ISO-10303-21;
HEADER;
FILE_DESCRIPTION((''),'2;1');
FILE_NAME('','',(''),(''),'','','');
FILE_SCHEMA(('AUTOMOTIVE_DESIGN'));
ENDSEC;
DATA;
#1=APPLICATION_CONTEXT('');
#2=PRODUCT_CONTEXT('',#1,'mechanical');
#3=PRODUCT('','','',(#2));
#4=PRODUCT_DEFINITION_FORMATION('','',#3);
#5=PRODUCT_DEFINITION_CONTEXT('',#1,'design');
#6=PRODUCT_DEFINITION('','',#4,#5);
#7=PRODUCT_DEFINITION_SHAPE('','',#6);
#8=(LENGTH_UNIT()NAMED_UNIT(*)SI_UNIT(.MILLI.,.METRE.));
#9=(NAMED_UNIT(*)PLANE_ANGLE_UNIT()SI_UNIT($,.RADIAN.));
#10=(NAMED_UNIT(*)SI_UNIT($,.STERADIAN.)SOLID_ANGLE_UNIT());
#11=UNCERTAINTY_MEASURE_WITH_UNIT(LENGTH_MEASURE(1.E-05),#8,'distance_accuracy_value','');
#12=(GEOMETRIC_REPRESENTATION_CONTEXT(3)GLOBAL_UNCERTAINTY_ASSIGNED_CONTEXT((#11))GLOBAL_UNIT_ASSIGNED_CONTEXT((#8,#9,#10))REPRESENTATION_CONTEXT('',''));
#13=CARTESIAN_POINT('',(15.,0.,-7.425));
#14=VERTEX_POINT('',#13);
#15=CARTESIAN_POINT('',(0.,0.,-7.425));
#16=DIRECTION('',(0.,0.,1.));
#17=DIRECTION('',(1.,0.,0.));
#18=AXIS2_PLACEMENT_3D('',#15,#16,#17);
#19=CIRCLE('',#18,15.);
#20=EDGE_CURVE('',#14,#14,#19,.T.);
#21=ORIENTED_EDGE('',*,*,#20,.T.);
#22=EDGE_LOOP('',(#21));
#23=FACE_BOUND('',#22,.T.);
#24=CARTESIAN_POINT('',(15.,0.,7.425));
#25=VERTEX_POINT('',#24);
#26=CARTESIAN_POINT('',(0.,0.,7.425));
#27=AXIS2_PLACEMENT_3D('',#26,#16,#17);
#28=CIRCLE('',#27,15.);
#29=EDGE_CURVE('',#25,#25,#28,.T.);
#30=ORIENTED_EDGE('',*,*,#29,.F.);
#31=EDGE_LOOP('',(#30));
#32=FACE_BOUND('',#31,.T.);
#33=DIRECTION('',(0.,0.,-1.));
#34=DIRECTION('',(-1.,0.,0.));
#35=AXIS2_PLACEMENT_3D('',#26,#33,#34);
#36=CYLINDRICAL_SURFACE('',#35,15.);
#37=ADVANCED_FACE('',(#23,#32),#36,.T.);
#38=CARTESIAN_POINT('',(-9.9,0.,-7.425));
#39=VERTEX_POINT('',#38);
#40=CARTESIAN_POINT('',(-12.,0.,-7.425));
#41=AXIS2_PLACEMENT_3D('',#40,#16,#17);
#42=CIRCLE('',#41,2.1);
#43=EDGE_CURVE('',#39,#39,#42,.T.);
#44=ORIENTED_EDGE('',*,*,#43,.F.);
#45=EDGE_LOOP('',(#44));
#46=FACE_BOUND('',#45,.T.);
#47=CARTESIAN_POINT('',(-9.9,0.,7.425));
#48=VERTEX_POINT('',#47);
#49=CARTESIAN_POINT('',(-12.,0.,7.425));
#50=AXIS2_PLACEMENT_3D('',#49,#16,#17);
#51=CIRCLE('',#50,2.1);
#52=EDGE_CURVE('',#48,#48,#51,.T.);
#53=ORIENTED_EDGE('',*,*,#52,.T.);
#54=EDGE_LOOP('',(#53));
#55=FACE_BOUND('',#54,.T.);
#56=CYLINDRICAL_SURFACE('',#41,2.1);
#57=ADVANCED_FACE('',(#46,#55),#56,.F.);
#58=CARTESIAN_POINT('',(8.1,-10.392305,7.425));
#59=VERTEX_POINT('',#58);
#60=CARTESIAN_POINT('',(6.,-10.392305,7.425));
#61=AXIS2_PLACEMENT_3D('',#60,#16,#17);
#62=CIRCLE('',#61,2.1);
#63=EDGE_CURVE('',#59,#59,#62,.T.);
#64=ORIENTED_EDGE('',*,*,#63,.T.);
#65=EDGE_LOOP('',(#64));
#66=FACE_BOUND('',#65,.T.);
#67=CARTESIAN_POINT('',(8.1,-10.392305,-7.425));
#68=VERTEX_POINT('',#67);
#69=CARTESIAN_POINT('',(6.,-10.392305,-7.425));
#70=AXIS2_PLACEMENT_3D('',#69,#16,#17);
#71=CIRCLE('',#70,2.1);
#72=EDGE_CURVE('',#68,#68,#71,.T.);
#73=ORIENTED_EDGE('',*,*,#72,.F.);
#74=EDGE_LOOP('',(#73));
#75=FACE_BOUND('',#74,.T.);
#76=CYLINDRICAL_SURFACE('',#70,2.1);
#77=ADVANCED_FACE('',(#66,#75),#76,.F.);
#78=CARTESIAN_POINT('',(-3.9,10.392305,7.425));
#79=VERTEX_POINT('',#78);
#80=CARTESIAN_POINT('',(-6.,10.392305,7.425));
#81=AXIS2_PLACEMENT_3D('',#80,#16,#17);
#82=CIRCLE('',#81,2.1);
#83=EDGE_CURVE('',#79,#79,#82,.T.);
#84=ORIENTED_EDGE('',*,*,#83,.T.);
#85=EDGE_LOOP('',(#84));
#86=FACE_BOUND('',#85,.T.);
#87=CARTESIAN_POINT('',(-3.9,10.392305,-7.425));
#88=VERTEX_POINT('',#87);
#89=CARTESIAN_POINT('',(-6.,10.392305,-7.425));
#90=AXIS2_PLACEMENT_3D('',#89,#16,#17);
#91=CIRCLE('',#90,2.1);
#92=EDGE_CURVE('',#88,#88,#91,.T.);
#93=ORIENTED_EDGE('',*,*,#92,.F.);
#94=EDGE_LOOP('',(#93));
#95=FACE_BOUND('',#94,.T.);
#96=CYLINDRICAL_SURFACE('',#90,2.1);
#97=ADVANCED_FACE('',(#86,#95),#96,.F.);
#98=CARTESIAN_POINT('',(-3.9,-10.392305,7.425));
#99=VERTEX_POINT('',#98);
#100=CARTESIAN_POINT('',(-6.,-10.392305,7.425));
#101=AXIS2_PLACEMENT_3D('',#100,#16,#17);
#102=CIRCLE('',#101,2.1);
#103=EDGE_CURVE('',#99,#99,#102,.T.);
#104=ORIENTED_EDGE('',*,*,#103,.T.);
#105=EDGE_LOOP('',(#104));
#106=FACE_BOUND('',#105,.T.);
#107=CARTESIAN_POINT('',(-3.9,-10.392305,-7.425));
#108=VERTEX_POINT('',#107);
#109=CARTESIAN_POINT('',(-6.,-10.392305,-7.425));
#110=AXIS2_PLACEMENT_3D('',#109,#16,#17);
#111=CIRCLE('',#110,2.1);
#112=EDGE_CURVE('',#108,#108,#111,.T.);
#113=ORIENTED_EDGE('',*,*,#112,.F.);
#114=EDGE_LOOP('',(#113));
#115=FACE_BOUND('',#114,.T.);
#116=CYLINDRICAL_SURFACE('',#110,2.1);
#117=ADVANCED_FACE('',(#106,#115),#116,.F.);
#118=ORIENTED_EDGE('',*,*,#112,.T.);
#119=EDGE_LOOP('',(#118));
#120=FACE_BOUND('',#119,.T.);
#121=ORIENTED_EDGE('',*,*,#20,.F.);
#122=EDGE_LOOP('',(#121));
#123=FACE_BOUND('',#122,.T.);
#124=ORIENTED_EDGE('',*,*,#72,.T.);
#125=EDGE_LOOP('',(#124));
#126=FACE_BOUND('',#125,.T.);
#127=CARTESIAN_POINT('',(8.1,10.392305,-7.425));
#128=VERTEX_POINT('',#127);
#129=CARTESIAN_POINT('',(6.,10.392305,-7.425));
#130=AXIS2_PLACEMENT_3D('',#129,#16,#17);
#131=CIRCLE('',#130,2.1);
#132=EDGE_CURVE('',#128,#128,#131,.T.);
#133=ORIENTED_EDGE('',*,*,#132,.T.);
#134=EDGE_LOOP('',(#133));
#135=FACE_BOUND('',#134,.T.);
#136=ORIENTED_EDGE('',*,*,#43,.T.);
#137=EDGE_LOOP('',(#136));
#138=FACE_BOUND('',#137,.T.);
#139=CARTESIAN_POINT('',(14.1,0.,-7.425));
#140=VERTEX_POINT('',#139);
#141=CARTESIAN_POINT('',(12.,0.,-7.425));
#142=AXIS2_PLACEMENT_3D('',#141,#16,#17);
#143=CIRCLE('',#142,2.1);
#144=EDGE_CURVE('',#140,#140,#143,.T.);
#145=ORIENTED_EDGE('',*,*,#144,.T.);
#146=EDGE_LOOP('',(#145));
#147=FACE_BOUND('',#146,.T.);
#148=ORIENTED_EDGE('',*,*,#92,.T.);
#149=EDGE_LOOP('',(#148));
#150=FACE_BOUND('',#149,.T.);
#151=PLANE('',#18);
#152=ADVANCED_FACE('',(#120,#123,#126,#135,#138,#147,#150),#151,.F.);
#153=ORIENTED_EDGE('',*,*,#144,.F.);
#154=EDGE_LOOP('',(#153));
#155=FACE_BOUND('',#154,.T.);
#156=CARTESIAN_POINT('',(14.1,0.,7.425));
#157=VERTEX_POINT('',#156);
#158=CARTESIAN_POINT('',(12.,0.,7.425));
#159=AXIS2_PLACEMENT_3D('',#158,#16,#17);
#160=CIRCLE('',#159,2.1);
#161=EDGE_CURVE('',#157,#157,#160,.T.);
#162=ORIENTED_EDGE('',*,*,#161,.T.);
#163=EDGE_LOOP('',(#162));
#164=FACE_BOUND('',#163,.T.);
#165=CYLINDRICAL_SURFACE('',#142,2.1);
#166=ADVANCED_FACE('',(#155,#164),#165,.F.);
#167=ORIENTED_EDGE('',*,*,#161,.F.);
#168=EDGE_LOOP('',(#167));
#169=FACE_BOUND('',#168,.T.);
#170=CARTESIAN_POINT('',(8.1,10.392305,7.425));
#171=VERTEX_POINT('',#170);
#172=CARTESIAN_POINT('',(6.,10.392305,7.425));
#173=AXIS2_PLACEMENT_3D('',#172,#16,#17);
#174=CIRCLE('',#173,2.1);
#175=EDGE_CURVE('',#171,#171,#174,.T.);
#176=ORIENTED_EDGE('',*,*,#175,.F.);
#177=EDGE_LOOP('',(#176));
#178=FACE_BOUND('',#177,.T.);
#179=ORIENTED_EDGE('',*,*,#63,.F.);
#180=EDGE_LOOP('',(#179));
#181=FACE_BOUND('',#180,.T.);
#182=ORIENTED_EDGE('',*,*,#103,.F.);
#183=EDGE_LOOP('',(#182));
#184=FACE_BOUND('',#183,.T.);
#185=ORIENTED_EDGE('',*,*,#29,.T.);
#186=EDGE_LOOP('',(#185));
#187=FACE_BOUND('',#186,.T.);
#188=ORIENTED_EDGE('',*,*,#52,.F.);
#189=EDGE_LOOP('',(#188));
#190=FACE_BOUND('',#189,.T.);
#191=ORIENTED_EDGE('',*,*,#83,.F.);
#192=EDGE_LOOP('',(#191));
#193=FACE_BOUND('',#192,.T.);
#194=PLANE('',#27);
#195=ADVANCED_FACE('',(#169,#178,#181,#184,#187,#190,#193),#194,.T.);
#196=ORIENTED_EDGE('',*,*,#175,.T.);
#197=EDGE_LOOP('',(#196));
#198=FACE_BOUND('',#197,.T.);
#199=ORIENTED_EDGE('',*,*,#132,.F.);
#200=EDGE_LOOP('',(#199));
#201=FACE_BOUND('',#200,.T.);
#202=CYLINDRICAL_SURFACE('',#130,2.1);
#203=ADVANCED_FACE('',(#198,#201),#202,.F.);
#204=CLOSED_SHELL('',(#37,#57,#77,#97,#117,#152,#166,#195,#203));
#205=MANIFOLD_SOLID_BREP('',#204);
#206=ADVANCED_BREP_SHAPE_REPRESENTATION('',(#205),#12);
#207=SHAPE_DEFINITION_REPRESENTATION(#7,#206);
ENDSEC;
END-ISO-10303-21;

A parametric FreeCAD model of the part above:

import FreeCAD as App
import Part
import Sketcher

V = App.Vector
Q = App.Units.Quantity

doc = App.newDocument("Part")
body = doc.addObject("PartDesign::Body", "Body")

# Sketch on XY plane
sketch1 = doc.addObject("Sketcher::SketchObject", "Sketch")
body.addObject(sketch1)
sketch1.AttachmentSupport = (doc.XY_Plane, [""])
sketch1.MapMode = "FlatFace"
sketch1.addGeometry(Part.Circle(V(0, 0, 0), V(0, 0, 1), 15), False)
sketch1.addConstraint([
    Sketcher.Constraint("Coincident", 0, 3, -1, 1),
    Sketcher.Constraint("Diameter", 0, Q("30 mm")),
])
pad1 = doc.addObject("PartDesign::Pad", "Pad")
body.addObject(pad1)
pad1.Profile = sketch1
pad1.Length = 14.85
pad1.Midplane = True

# Sketch on XY plane
sketch2 = doc.addObject("Sketcher::SketchObject", "Sketch001")
body.addObject(sketch2)
sketch2.AttachmentSupport = (doc.XY_Plane, [""])
sketch2.MapMode = "FlatFace"
sketch2.AttachmentOffset = App.Placement(V(0, 0, 7.425), App.Rotation())
sketch2.addGeometry([
    Part.Circle(V(-6, 10.4, 0), V(0, 0, 1), 2.1),  # 0
    Part.Circle(V(6, 10.4, 0), V(0, 0, 1), 2.1),  # 1
    Part.Circle(V(12, 0, 0), V(0, 0, 1), 2.1),  # 2
    Part.Circle(V(6, -10.4, 0), V(0, 0, 1), 2.1),  # 3
    Part.Circle(V(-6, -10.4, 0), V(0, 0, 1), 2.1),  # 4
    Part.Circle(V(-12, 0, 0), V(0, 0, 1), 2.1),  # 5
], False)
sketch2.addConstraint([
    Sketcher.Constraint("Equal", 0, 1),
    Sketcher.Constraint("Equal", 1, 2),
    Sketcher.Constraint("Equal", 2, 3),
    Sketcher.Constraint("Equal", 3, 4),
    Sketcher.Constraint("Equal", 4, 5),
    Sketcher.Constraint("Symmetric", 0, 3, 3, 3, -1, 1),
    Sketcher.Constraint("Symmetric", 1, 3, 4, 3, -1, 1),
    Sketcher.Constraint("Symmetric", 2, 3, 5, 3, -1, 1),
    Sketcher.Constraint("Symmetric", 0, 3, 1, 3, -2),
    Sketcher.Constraint("PointOnObject", 2, 3, -1),
    Sketcher.Constraint("Diameter", 0, Q("4.2 mm")),
    Sketcher.Constraint("DistanceX", 0, 3, -1, 1, Q("6 mm")),
    Sketcher.Constraint("DistanceX", -1, 1, 2, 3, Q("12 mm")),
    Sketcher.Constraint("DistanceY", 3, 3, 1, 3, Q("20.78461 mm")),
])
pocket1 = doc.addObject("PartDesign::Pocket", "Pocket")
body.addObject(pocket1)
pocket1.Profile = sketch2
pocket1.Type = "ThroughAll"

doc.recompute()
